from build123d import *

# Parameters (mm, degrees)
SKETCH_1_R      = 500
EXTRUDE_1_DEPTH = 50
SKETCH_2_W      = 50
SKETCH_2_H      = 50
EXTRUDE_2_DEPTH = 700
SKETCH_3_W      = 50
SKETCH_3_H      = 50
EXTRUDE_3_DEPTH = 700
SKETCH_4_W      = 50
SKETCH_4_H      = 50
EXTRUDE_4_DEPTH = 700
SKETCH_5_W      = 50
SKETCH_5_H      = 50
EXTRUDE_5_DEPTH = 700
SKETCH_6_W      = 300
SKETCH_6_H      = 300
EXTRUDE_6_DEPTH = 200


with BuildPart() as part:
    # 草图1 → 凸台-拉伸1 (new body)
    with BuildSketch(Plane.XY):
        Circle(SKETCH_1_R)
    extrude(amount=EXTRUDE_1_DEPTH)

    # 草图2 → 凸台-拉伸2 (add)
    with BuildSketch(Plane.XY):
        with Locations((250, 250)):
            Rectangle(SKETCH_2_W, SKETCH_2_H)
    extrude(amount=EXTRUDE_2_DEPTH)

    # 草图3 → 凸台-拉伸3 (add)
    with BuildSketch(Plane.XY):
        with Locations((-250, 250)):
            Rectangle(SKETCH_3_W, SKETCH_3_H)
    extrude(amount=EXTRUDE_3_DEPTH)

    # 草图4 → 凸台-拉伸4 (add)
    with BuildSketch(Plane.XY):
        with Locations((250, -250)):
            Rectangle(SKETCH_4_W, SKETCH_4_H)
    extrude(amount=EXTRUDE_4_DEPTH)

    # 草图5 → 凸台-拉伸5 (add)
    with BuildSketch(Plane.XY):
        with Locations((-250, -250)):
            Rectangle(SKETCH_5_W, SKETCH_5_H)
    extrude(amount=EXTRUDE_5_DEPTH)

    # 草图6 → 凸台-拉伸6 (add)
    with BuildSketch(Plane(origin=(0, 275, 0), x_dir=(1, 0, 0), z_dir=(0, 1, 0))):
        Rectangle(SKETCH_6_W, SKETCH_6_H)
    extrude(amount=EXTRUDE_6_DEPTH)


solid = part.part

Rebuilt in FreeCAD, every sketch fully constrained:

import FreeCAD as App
import Part
import Sketcher
Q = App.Units.Quantity

doc = App.newDocument("Part")
body = doc.addObject("PartDesign::Body", "Body")

# Sketch on XY plane
sketch1 = body.newObject("Sketcher::SketchObject", "Sketch")
sketch1.AttachmentSupport = (doc.getObject("XY_Plane"), [""])
sketch1.MapMode = "FlatFace"
sketch1.addGeometry(Part.Circle(App.Vector(0, 0, 0), App.Vector(0, 0, 1), 500), False)
sketch1.addConstraint(Sketcher.Constraint("Coincident", 0, 3, -1, 1))
sketch1.addConstraint(Sketcher.Constraint("Diameter", 0, Q("1000 mm")))
pad1 = body.newObject("PartDesign::Pad", "Pad")
pad1.Profile = sketch1
pad1.Length = 50

# Sketch on XY plane
sketch2 = body.newObject("Sketcher::SketchObject", "Sketch001")
sketch2.AttachmentSupport = (doc.getObject("XY_Plane"), [""])
sketch2.MapMode = "FlatFace"
sketch2.addGeometry(Part.LineSegment(App.Vector(225, 275, 0), App.Vector(225, 225, 0)), False)
sketch2.addGeometry(Part.LineSegment(App.Vector(225, 225, 0), App.Vector(275, 225, 0)), False)
sketch2.addGeometry(Part.LineSegment(App.Vector(275, 225, 0), App.Vector(275, 275, 0)), False)
sketch2.addGeometry(Part.LineSegment(App.Vector(275, 275, 0), App.Vector(225, 275, 0)), False)
sketch2.addConstraint(Sketcher.Constraint("Coincident", 0, 2, 1, 1))
sketch2.addConstraint(Sketcher.Constraint("Coincident", 1, 2, 2, 1))
sketch2.addConstraint(Sketcher.Constraint("Coincident", 2, 2, 3, 1))
sketch2.addConstraint(Sketcher.Constraint("Coincident", 3, 2, 0, 1))
sketch2.addConstraint(Sketcher.Constraint("Vertical", 0))
sketch2.addConstraint(Sketcher.Constraint("Horizontal", 1))
sketch2.addConstraint(Sketcher.Constraint("Vertical", 2))
sketch2.addConstraint(Sketcher.Constraint("Horizontal", 3))
sketch2.addConstraint(Sketcher.Constraint("Equal", 3, 0))
sketch2.addConstraint(Sketcher.Constraint("DistanceX", 1, 1, 1, 2, Q("50 mm")))
sketch2.addConstraint(Sketcher.Constraint("DistanceX", -1, 1, 0, 2, Q("225 mm")))
sketch2.addConstraint(Sketcher.Constraint("DistanceY", -1, 1, 0, 2, Q("225 mm")))
pad2 = body.newObject("PartDesign::Pad", "Pad001")
pad2.Profile = sketch2
pad2.Length = 700

# Sketch on XY plane
sketch3 = body.newObject("Sketcher::SketchObject", "Sketch002")
sketch3.AttachmentSupport = (doc.getObject("XY_Plane"), [""])
sketch3.MapMode = "FlatFace"
sketch3.addGeometry(Part.LineSegment(App.Vector(-275, 275, 0), App.Vector(-275, 225, 0)), False)
sketch3.addGeometry(Part.LineSegment(App.Vector(-275, 225, 0), App.Vector(-225, 225, 0)), False)
sketch3.addGeometry(Part.LineSegment(App.Vector(-225, 225, 0), App.Vector(-225, 275, 0)), False)
sketch3.addGeometry(Part.LineSegment(App.Vector(-225, 275, 0), App.Vector(-275, 275, 0)), False)
sketch3.addConstraint(Sketcher.Constraint("Coincident", 0, 2, 1, 1))
sketch3.addConstraint(Sketcher.Constraint("Coincident", 1, 2, 2, 1))
sketch3.addConstraint(Sketcher.Constraint("Coincident", 2, 2, 3, 1))
sketch3.addConstraint(Sketcher.Constraint("Coincident", 3, 2, 0, 1))
sketch3.addConstraint(Sketcher.Constraint("Vertical", 0))
sketch3.addConstraint(Sketcher.Constraint("Horizontal", 1))
sketch3.addConstraint(Sketcher.Constraint("Vertical", 2))
sketch3.addConstraint(Sketcher.Constraint("Horizontal", 3))
sketch3.addConstraint(Sketcher.Constraint("Equal", 3, 0))
sketch3.addConstraint(Sketcher.Constraint("DistanceX", 1, 1, 1, 2, Q("50 mm")))
sketch3.addConstraint(Sketcher.Constraint("DistanceX", 0, 2, -1, 1, Q("275 mm")))
sketch3.addConstraint(Sketcher.Constraint("DistanceY", -1, 1, 0, 2, Q("225 mm")))
pad3 = body.newObject("PartDesign::Pad", "Pad002")
pad3.Profile = sketch3
pad3.Length = 700

# Sketch on XY plane
sketch4 = body.newObject("Sketcher::SketchObject", "Sketch003")
sketch4.AttachmentSupport = (doc.getObject("XY_Plane"), [""])
sketch4.MapMode = "FlatFace"
sketch4.addGeometry(Part.LineSegment(App.Vector(225, -225, 0), App.Vector(225, -275, 0)), False)
sketch4.addGeometry(Part.LineSegment(App.Vector(225, -275, 0), App.Vector(275, -275, 0)), False)
sketch4.addGeometry(Part.LineSegment(App.Vector(275, -275, 0), App.Vector(275, -225, 0)), False)
sketch4.addGeometry(Part.LineSegment(App.Vector(275, -225, 0), App.Vector(225, -225, 0)), False)
sketch4.addConstraint(Sketcher.Constraint("Coincident", 0, 2, 1, 1))
sketch4.addConstraint(Sketcher.Constraint("Coincident", 1, 2, 2, 1))
sketch4.addConstraint(Sketcher.Constraint("Coincident", 2, 2, 3, 1))
sketch4.addConstraint(Sketcher.Constraint("Coincident", 3, 2, 0, 1))
sketch4.addConstraint(Sketcher.Constraint("Vertical", 0))
sketch4.addConstraint(Sketcher.Constraint("Horizontal", 1))
sketch4.addConstraint(Sketcher.Constraint("Vertical", 2))
sketch4.addConstraint(Sketcher.Constraint("Horizontal", 3))
sketch4.addConstraint(Sketcher.Constraint("Equal", 3, 0))
sketch4.addConstraint(Sketcher.Constraint("DistanceX", 1, 1, 1, 2, Q("50 mm")))
sketch4.addConstraint(Sketcher.Constraint("DistanceX", -1, 1, 0, 2, Q("225 mm")))
sketch4.addConstraint(Sketcher.Constraint("DistanceY", 0, 2, -1, 1, Q("275 mm")))
pad4 = body.newObject("PartDesign::Pad", "Pad003")
pad4.Profile = sketch4
pad4.Length = 700

# Sketch on XY plane
sketch5 = body.newObject("Sketcher::SketchObject", "Sketch004")
sketch5.AttachmentSupport = (doc.getObject("XY_Plane"), [""])
sketch5.MapMode = "FlatFace"
sketch5.addGeometry(Part.LineSegment(App.Vector(-275, -225, 0), App.Vector(-275, -275, 0)), False)
sketch5.addGeometry(Part.LineSegment(App.Vector(-275, -275, 0), App.Vector(-225, -275, 0)), False)
sketch5.addGeometry(Part.LineSegment(App.Vector(-225, -275, 0), App.Vector(-225, -225, 0)), False)
sketch5.addGeometry(Part.LineSegment(App.Vector(-225, -225, 0), App.Vector(-275, -225, 0)), False)
sketch5.addConstraint(Sketcher.Constraint("Coincident", 0, 2, 1, 1))
sketch5.addConstraint(Sketcher.Constraint("Coincident", 1, 2, 2, 1))
sketch5.addConstraint(Sketcher.Constraint("Coincident", 2, 2, 3, 1))
sketch5.addConstraint(Sketcher.Constraint("Coincident", 3, 2, 0, 1))
sketch5.addConstraint(Sketcher.Constraint("Vertical", 0))
sketch5.addConstraint(Sketcher.Constraint("Horizontal", 1))
sketch5.addConstraint(Sketcher.Constraint("Vertical", 2))
sketch5.addConstraint(Sketcher.Constraint("Horizontal", 3))
sketch5.addConstraint(Sketcher.Constraint("Equal", 3, 0))
sketch5.addConstraint(Sketcher.Constraint("DistanceX", 1, 1, 1, 2, Q("50 mm")))
sketch5.addConstraint(Sketcher.Constraint("DistanceX", 0, 2, -1, 1, Q("275 mm")))
sketch5.addConstraint(Sketcher.Constraint("DistanceY", 0, 2, -1, 1, Q("275 mm")))
pad5 = body.newObject("PartDesign::Pad", "Pad004")
pad5.Profile = sketch5
pad5.Length = 700

# Sketch on XZ plane
sketch6 = body.newObject("Sketcher::SketchObject", "Sketch005")
sketch6.AttachmentSupport = (doc.getObject("XZ_Plane"), [""])
sketch6.MapMode = "FlatFace"
sketch6.AttachmentOffset = App.Placement(App.Vector(0, 0, -275), App.Rotation())
sketch6.addGeometry(Part.LineSegment(App.Vector(-150, -150, 0), App.Vector(-150, 150, 0)), False)
sketch6.addGeometry(Part.LineSegment(App.Vector(-150, 150, 0), App.Vector(150, 150, 0)), False)
sketch6.addGeometry(Part.LineSegment(App.Vector(150, 150, 0), App.Vector(150, -150, 0)), False)
sketch6.addGeometry(Part.LineSegment(App.Vector(150, -150, 0), App.Vector(-150, -150, 0)), False)
sketch6.addConstraint(Sketcher.Constraint("Coincident", 0, 2, 1, 1))
sketch6.addConstraint(Sketcher.Constraint("Coincident", 1, 2, 2, 1))
sketch6.addConstraint(Sketcher.Constraint("Coincident", 2, 2, 3, 1))
sketch6.addConstraint(Sketcher.Constraint("Coincident", 3, 2, 0, 1))
sketch6.addConstraint(Sketcher.Constraint("Vertical", 0))
sketch6.addConstraint(Sketcher.Constraint("Horizontal", 1))
sketch6.addConstraint(Sketcher.Constraint("Vertical", 2))
sketch6.addConstraint(Sketcher.Constraint("Horizontal", 3))
sketch6.addConstraint(Sketcher.Constraint("Symmetric", 0, 2, 2, 2, -1, 1))
sketch6.addConstraint(Sketcher.Constraint("Equal", 3, 0))
sketch6.addConstraint(Sketcher.Constraint("DistanceX", 1, 1, 1, 2, Q("300 mm")))
pad6 = body.newObject("PartDesign::Pad", "Pad005")
pad6.Profile = sketch6
pad6.Length = 200
pad6.Reversed = True

doc.recompute()
